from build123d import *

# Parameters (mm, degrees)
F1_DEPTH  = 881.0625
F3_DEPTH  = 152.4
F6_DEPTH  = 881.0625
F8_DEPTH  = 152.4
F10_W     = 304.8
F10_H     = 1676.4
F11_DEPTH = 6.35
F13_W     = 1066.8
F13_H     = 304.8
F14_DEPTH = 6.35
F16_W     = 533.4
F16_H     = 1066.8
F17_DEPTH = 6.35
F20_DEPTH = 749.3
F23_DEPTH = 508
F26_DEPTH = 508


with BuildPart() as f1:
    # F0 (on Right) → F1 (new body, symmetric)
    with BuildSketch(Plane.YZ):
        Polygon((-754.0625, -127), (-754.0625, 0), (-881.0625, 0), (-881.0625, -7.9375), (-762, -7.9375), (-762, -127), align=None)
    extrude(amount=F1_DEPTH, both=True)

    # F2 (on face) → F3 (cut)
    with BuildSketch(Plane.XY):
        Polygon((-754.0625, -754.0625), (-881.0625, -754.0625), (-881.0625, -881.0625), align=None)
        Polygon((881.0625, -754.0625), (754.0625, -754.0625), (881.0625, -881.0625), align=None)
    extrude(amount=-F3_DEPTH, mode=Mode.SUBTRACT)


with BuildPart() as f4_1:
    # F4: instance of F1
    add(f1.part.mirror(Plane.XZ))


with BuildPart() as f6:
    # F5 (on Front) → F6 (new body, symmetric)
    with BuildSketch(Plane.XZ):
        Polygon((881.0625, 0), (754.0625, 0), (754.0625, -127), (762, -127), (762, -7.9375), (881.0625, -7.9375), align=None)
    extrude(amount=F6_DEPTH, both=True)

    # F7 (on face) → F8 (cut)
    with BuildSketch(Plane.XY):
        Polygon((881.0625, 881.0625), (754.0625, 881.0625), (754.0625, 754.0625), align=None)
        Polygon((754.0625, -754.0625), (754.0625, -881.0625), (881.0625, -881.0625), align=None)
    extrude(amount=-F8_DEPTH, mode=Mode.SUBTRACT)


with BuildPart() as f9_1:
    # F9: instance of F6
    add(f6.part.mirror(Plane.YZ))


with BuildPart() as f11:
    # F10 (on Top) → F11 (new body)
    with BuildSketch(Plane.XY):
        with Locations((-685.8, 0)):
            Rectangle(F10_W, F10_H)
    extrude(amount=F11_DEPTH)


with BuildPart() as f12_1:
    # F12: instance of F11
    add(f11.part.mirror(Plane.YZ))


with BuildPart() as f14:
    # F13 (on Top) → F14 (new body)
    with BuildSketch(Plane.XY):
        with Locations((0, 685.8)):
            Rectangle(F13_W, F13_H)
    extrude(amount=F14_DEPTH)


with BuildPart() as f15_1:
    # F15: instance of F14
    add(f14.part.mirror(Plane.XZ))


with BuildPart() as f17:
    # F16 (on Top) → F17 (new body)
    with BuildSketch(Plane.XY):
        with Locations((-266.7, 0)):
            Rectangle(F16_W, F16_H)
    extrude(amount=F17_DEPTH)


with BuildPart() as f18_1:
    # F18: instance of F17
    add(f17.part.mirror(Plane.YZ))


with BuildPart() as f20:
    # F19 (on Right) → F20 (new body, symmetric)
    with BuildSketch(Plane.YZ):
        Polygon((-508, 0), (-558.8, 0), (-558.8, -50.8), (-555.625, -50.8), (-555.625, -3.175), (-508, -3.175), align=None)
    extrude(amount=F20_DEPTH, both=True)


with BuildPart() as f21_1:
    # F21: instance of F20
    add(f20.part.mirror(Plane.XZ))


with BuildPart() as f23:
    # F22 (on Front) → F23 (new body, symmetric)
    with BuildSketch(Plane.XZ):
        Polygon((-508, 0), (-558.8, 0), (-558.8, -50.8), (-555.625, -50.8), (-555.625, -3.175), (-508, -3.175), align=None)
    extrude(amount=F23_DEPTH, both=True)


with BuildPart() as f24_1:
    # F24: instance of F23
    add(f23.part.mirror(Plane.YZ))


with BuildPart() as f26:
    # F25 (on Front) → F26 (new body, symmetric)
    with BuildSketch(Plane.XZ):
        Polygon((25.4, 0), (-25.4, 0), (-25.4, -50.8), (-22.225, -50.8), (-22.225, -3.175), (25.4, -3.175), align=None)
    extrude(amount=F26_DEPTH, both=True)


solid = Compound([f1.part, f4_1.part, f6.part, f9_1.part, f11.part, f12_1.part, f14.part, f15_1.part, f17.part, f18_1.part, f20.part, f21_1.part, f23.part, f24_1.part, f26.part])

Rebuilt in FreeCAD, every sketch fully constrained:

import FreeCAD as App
import Part
import Sketcher
from FreeCAD import Vector
Q = App.Units.Quantity


def add_polygon(sketch, points):
    """Adds a closed chain of lines whose ends are joined by coincident constraints."""
    first, n = sketch.GeometryCount, len(points)
    for a, b in zip(points, points[1:] + points[:1]):
        sketch.addGeometry(Part.LineSegment(App.Vector(*a, 0), App.Vector(*b, 0)), False)
    for i in range(n):
        sketch.addConstraint(Sketcher.Constraint("Coincident", first + i, 2, first + (i + 1) % n, 1))

doc = App.newDocument("Part")
body = doc.addObject("PartDesign::Body", "Body")

# Sketch on YZ plane
sketch1 = body.newObject("Sketcher::SketchObject", "Sketch")
sketch1.AttachmentSupport = (doc.getObject("YZ_Plane"), [""])
sketch1.MapMode = "FlatFace"
add_polygon(sketch1, [(-754.0625, -127), (-754.0625, 0), (-881.0625, 0), (-881.0625, -7.9375), (-762, -7.9375), (-762, -127)])  # lines 0-5
sketch1.addConstraint(Sketcher.Constraint("Vertical", 0))
sketch1.addConstraint(Sketcher.Constraint("Horizontal", 1))
sketch1.addConstraint(Sketcher.Constraint("Vertical", 2))
sketch1.addConstraint(Sketcher.Constraint("Horizontal", 3))
sketch1.addConstraint(Sketcher.Constraint("Vertical", 4))
sketch1.addConstraint(Sketcher.Constraint("Horizontal", 5))
sketch1.addConstraint(Sketcher.Constraint("PointOnObject", 0, 2, -1))
sketch1.addConstraint(Sketcher.Constraint("Equal", 1, 0))
sketch1.addConstraint(Sketcher.Constraint("Equal", 5, 2))
sketch1.addConstraint(Sketcher.Constraint("DistanceX", 1, 2, 1, 1, Q("5 in")))
sketch1.addConstraint(Sketcher.Constraint("DistanceX", 3, 2, -1, 1, Q("30 in")))
sketch1.addConstraint(Sketcher.Constraint("DistanceX", 3, 1, 3, 2, Q("4.6875 in")))
pad1 = body.newObject("PartDesign::Pad", "Pad")
pad1.Profile = sketch1
pad1.Length = Q("69.375 in")
pad1.Midplane = True

# Sketch on XY plane
sketch2 = body.newObject("Sketcher::SketchObject", "Sketch001")
sketch2.AttachmentSupport = (doc.getObject("XY_Plane"), [""])
sketch2.MapMode = "FlatFace"
add_polygon(sketch2, [(-754.0625, -754.0625), (-881.0625, -754.0625), (-881.0625, -881.0625)])  # lines 0-2
add_polygon(sketch2, [(881.0625, -754.0625), (754.0625, -754.0625), (881.0625, -881.0625)])  # lines 3-5
sketch2.addConstraint(Sketcher.Constraint("Horizontal", 0))
sketch2.addConstraint(Sketcher.Constraint("Vertical", 1))
sketch2.addConstraint(Sketcher.Constraint("Horizontal", 3))
sketch2.addConstraint(Sketcher.Constraint("Vertical", 5))
sketch2.addConstraint(Sketcher.Constraint("Symmetric", 2, 2, 3, 2, -2))
sketch2.addConstraint(Sketcher.Constraint("Symmetric", 1, 2, 4, 2, -2))
sketch2.addConstraint(Sketcher.Constraint("Perpendicular", 2, 4))
sketch2.addConstraint(Sketcher.Constraint("DistanceX", 0, 2, 0, 1, Q("5 in")))
sketch2.addConstraint(Sketcher.Constraint("DistanceX", 0, 2, -1, 1, Q("34.6875 in")))
sketch2.addConstraint(Sketcher.Constraint("DistanceY", 0, 2, -1, 1, Q("29.6875 in")))
pocket1 = body.newObject("PartDesign::Pocket", "Pocket")
pocket1.Profile = sketch2
pocket1.Length = Q("6 in")
body2 = doc.addObject("PartDesign::Body", "Body001")
doc.recompute()

mirroring = doc.addObject("Part::Mirroring", "Mirroring")
mirroring.Source = body
mirroring.Base = Vector(0, 0, 0)
mirroring.Normal = Vector(0, -1, 0)
body2.BaseFeature = mirroring
doc.recompute()
body3 = doc.addObject("PartDesign::Body", "Body002")

# Sketch on XZ plane
sketch3 = body3.newObject("Sketcher::SketchObject", "Sketch002")
sketch3.AttachmentSupport = (doc.getObject("XZ_Plane002"), [""])
sketch3.MapMode = "FlatFace"
add_polygon(sketch3, [(881.0625, 0), (754.0625, 0), (754.0625, -127), (762, -127), (762, -7.9375), (881.0625, -7.9375)])  # lines 0-5
sketch3.addConstraint(Sketcher.Constraint("Horizontal", 0))
sketch3.addConstraint(Sketcher.Constraint("Vertical", 1))
sketch3.addConstraint(Sketcher.Constraint("Horizontal", 2))
sketch3.addConstraint(Sketcher.Constraint("Vertical", 3))
sketch3.addConstraint(Sketcher.Constraint("Horizontal", 4))
sketch3.addConstraint(Sketcher.Constraint("Vertical", 5))
sketch3.addConstraint(Sketcher.Constraint("PointOnObject", 0, 2, -1))
sketch3.addConstraint(Sketcher.Constraint("Equal", 0, 1))
sketch3.addConstraint(Sketcher.Constraint("Equal", 4, 3))
sketch3.addConstraint(Sketcher.Constraint("DistanceX", 0, 2, 0, 1, Q("5 in")))
sketch3.addConstraint(Sketcher.Constraint("DistanceX", -1, 1, 2, 2, Q("30 in")))
sketch3.addConstraint(Sketcher.Constraint("DistanceX", 2, 1, 2, 2, Q("0.3125 in")))
pad2 = body3.newObject("PartDesign::Pad", "Pad001")
pad2.Profile = sketch3
pad2.Length = Q("69.375 in")
pad2.Midplane = True

# Sketch on XY plane
sketch4 = body3.newObject("Sketcher::SketchObject", "Sketch003")
sketch4.AttachmentSupport = (doc.getObject("XY_Plane002"), [""])
sketch4.MapMode = "FlatFace"
add_polygon(sketch4, [(881.0625, 881.0625), (754.0625, 881.0625), (754.0625, 754.0625)])  # lines 0-2
add_polygon(sketch4, [(754.0625, -754.0625), (754.0625, -881.0625), (881.0625, -881.0625)])  # lines 3-5
sketch4.addConstraint(Sketcher.Constraint("Horizontal", 0))
sketch4.addConstraint(Sketcher.Constraint("Vertical", 1))
sketch4.addConstraint(Sketcher.Constraint("Vertical", 3))
sketch4.addConstraint(Sketcher.Constraint("Horizontal", 4))
sketch4.addConstraint(Sketcher.Constraint("Symmetric", 0, 2, 3, 2, -1))
sketch4.addConstraint(Sketcher.Constraint("Perpendicular", 2, 5))
sketch4.addConstraint(Sketcher.Constraint("Vertical", 2, 2, 4, 2))
sketch4.addConstraint(Sketcher.Constraint("Equal", 4, 1))
sketch4.addConstraint(Sketcher.Constraint("DistanceX", 0, 2, 0, 1, Q("5 in")))
sketch4.addConstraint(Sketcher.Constraint("DistanceX", -1, 1, 0, 2, Q("29.6875 in")))
sketch4.addConstraint(Sketcher.Constraint("DistanceY", -1, 1, 0, 2, Q("34.6875 in")))
pocket2 = body3.newObject("PartDesign::Pocket", "Pocket001")
pocket2.Profile = sketch4
pocket2.Length = Q("6 in")
body4 = doc.addObject("PartDesign::Body", "Body003")
doc.recompute()

mirroring2 = doc.addObject("Part::Mirroring", "Mirroring001")
mirroring2.Source = body3
mirroring2.Base = Vector(0, 0, 0)
mirroring2.Normal = Vector(1, 0, 0)
body4.BaseFeature = mirroring2
doc.recompute()
body5 = doc.addObject("PartDesign::Body", "Body004")

# Sketch on XY plane
sketch5 = body5.newObject("Sketcher::SketchObject", "Sketch004")
sketch5.AttachmentSupport = (doc.getObject("XY_Plane004"), [""])
sketch5.MapMode = "FlatFace"
add_polygon(sketch5, [(-838.2, 838.2), (-838.2, -838.2), (-533.4, -838.2), (-533.4, 838.2)])  # lines 0-3
sketch5.addConstraint(Sketcher.Constraint("Vertical", 0))
sketch5.addConstraint(Sketcher.Constraint("Horizontal", 1))
sketch5.addConstraint(Sketcher.Constraint("Vertical", 2))
sketch5.addConstraint(Sketcher.Constraint("Horizontal", 3))
sketch5.addConstraint(Sketcher.Constraint("DistanceX", 1, 1, 1, 2, Q("12 in")))
sketch5.addConstraint(Sketcher.Constraint("DistanceY", 0, 2, 0, 1, Q("66 in")))
sketch5.addConstraint(Sketcher.Constraint("DistanceX", 0, 2, -1, 1, Q("33 in")))
sketch5.addConstraint(Sketcher.Constraint("DistanceY", 0, 2, -1, 1, Q("33 in")))
pad3 = body5.newObject("PartDesign::Pad", "Pad002")
pad3.Profile = sketch5
pad3.Length = Q("0.25 in")
body6 = doc.addObject("PartDesign::Body", "Body005")
doc.recompute()

mirroring3 = doc.addObject("Part::Mirroring", "Mirroring002")
mirroring3.Source = body5
mirroring3.Base = Vector(0, 0, 0)
mirroring3.Normal = Vector(1, 0, 0)
body6.BaseFeature = mirroring3
doc.recompute()
body7 = doc.addObject("PartDesign::Body", "Body006")

# Sketch on XY plane
sketch6 = body7.newObject("Sketcher::SketchObject", "Sketch005")
sketch6.AttachmentSupport = (doc.getObject("XY_Plane006"), [""])
sketch6.MapMode = "FlatFace"
add_polygon(sketch6, [(-533.4, 838.2), (-533.4, 533.4), (533.4, 533.4), (533.4, 838.2)])  # lines 0-3
sketch6.addConstraint(Sketcher.Constraint("Vertical", 0))
sketch6.addConstraint(Sketcher.Constraint("Horizontal", 1))
sketch6.addConstraint(Sketcher.Constraint("Vertical", 2))
sketch6.addConstraint(Sketcher.Constraint("Horizontal", 3))
sketch6.addConstraint(Sketcher.Constraint("DistanceX", 1, 1, 1, 2, Q("42 in")))
sketch6.addConstraint(Sketcher.Constraint("DistanceY", 0, 2, 0, 1, Q("12 in")))
sketch6.addConstraint(Sketcher.Constraint("DistanceX", 0, 2, -1, 1, Q("21 in")))
sketch6.addConstraint(Sketcher.Constraint("DistanceY", -1, 1, 0, 2, Q("21 in")))
pad4 = body7.newObject("PartDesign::Pad", "Pad003")
pad4.Profile = sketch6
pad4.Length = Q("0.25 in")
body8 = doc.addObject("PartDesign::Body", "Body007")
doc.recompute()

mirroring4 = doc.addObject("Part::Mirroring", "Mirroring003")
mirroring4.Source = body7
mirroring4.Base = Vector(0, 0, 0)
mirroring4.Normal = Vector(0, -1, 0)
body8.BaseFeature = mirroring4
doc.recompute()
body9 = doc.addObject("PartDesign::Body", "Body008")

# Sketch on XY plane
sketch7 = body9.newObject("Sketcher::SketchObject", "Sketch006")
sketch7.AttachmentSupport = (doc.getObject("XY_Plane008"), [""])
sketch7.MapMode = "FlatFace"
add_polygon(sketch7, [(-533.4, 533.4), (-533.4, -533.4), (0, -533.4), (0, 533.4)])  # lines 0-3
sketch7.addConstraint(Sketcher.Constraint("Vertical", 0))
sketch7.addConstraint(Sketcher.Constraint("Horizontal", 1))
sketch7.addConstraint(Sketcher.Constraint("Vertical", 2))
sketch7.addConstraint(Sketcher.Constraint("Horizontal", 3))
sketch7.addConstraint(Sketcher.Constraint("Symmetric", 1, 2, 2, 2, -1, 1))
sketch7.addConstraint(Sketcher.Constraint("DistanceX", 1, 1, 1, 2, Q("21 in")))
sketch7.addConstraint(Sketcher.Constraint("DistanceY", 0, 2, 0, 1, Q("42 in")))
pad5 = body9.newObject("PartDesign::Pad", "Pad004")
pad5.Profile = sketch7
pad5.Length = Q("0.25 in")
body10 = doc.addObject("PartDesign::Body", "Body009")
doc.recompute()

mirroring5 = doc.addObject("Part::Mirroring", "Mirroring004")
mirroring5.Source = body9
mirroring5.Base = Vector(0, 0, 0)
mirroring5.Normal = Vector(1, 0, 0)
body10.BaseFeature = mirroring5
doc.recompute()
body11 = doc.addObject("PartDesign::Body", "Body010")

# Sketch on YZ plane
sketch8 = body11.newObject("Sketcher::SketchObject", "Sketch007")
sketch8.AttachmentSupport = (doc.getObject("YZ_Plane010"), [""])
sketch8.MapMode = "FlatFace"
add_polygon(sketch8, [(-508, 0), (-558.8, 0), (-558.8, -50.8), (-555.625, -50.8), (-555.625, -3.175), (-508, -3.175)])  # lines 0-5
sketch8.addConstraint(Sketcher.Constraint("Horizontal", 0))
sketch8.addConstraint(Sketcher.Constraint("Vertical", 1))
sketch8.addConstraint(Sketcher.Constraint("Horizontal", 2))
sketch8.addConstraint(Sketcher.Constraint("Vertical", 3))
sketch8.addConstraint(Sketcher.Constraint("Horizontal", 4))
sketch8.addConstraint(Sketcher.Constraint("Vertical", 5))
sketch8.addConstraint(Sketcher.Constraint("PointOnObject", 0, 2, -1))
sketch8.addConstraint(Sketcher.Constraint("Equal", 0, 1))
sketch8.addConstraint(Sketcher.Constraint("Equal", 4, 3))
sketch8.addConstraint(Sketcher.Constraint("DistanceX", 0, 2, 0, 1, Q("2 in")))
sketch8.addConstraint(Sketcher.Constraint("DistanceX", 0, 2, -1, 1, Q("22 in")))
sketch8.addConstraint(Sketcher.Constraint("DistanceX", 2, 1, 2, 2, Q("0.125 in")))
pad6 = body11.newObject("PartDesign::Pad", "Pad005")
pad6.Profile = sketch8
pad6.Length = Q("59 in")
pad6.Midplane = True
body12 = doc.addObject("PartDesign::Body", "Body011")
doc.recompute()

mirroring6 = doc.addObject("Part::Mirroring", "Mirroring005")
mirroring6.Source = body11
mirroring6.Base = Vector(0, 0, 0)
mirroring6.Normal = Vector(0, -1, 0)
body12.BaseFeature = mirroring6
doc.recompute()
body13 = doc.addObject("PartDesign::Body", "Body012")

# Sketch on XZ plane
sketch9 = body13.newObject("Sketcher::SketchObject", "Sketch008")
sketch9.AttachmentSupport = (doc.getObject("XZ_Plane012"), [""])
sketch9.MapMode = "FlatFace"
add_polygon(sketch9, [(-508, 0), (-558.8, 0), (-558.8, -50.8), (-555.625, -50.8), (-555.625, -3.175), (-508, -3.175)])  # lines 0-5
sketch9.addConstraint(Sketcher.Constraint("Horizontal", 0))
sketch9.addConstraint(Sketcher.Constraint("Vertical", 1))
sketch9.addConstraint(Sketcher.Constraint("Horizontal", 2))
sketch9.addConstraint(Sketcher.Constraint("Vertical", 3))
sketch9.addConstraint(Sketcher.Constraint("Horizontal", 4))
sketch9.addConstraint(Sketcher.Constraint("Vertical", 5))
sketch9.addConstraint(Sketcher.Constraint("PointOnObject", 0, 2, -1))
sketch9.addConstraint(Sketcher.Constraint("Equal", 0, 1))
sketch9.addConstraint(Sketcher.Constraint("Equal", 4, 3))
sketch9.addConstraint(Sketcher.Constraint("DistanceX", 0, 2, 0, 1, Q("2 in")))
sketch9.addConstraint(Sketcher.Constraint("DistanceX", 0, 2, -1, 1, Q("22 in")))
sketch9.addConstraint(Sketcher.Constraint("DistanceX", 2, 1, 2, 2, Q("0.125 in")))
pad7 = body13.newObject("PartDesign::Pad", "Pad006")
pad7.Profile = sketch9
pad7.Length = Q("40 in")
pad7.Midplane = True
body14 = doc.addObject("PartDesign::Body", "Body013")
doc.recompute()

mirroring7 = doc.addObject("Part::Mirroring", "Mirroring006")
mirroring7.Source = body13
mirroring7.Base = Vector(0, 0, 0)
mirroring7.Normal = Vector(1, 0, 0)
body14.BaseFeature = mirroring7
doc.recompute()
body15 = doc.addObject("PartDesign::Body", "Body014")

# Sketch on XZ plane
sketch10 = body15.newObject("Sketcher::SketchObject", "Sketch009")
sketch10.AttachmentSupport = (doc.getObject("XZ_Plane014"), [""])
sketch10.MapMode = "FlatFace"
add_polygon(sketch10, [(25.4, 0), (-25.4, 0), (-25.4, -50.8), (-22.225, -50.8), (-22.225, -3.175), (25.4, -3.175)])  # lines 0-5
sketch10.addConstraint(Sketcher.Constraint("Horizontal", 0))
sketch10.addConstraint(Sketcher.Constraint("Vertical", 1))
sketch10.addConstraint(Sketcher.Constraint("Horizontal", 2))
sketch10.addConstraint(Sketcher.Constraint("Vertical", 3))
sketch10.addConstraint(Sketcher.Constraint("Horizontal", 4))
sketch10.addConstraint(Sketcher.Constraint("Vertical", 5))
sketch10.addConstraint(Sketcher.Constraint("Symmetric", 0, 2, 5, 2, -1, 1))
sketch10.addConstraint(Sketcher.Constraint("Equal", 0, 1))
sketch10.addConstraint(Sketcher.Constraint("Equal", 4, 3))
sketch10.addConstraint(Sketcher.Constraint("DistanceX", 0, 2, 0, 1, Q("2 in")))
sketch10.addConstraint(Sketcher.Constraint("DistanceX", 2, 1, 2, 2, Q("0.125 in")))
pad8 = body15.newObject("PartDesign::Pad", "Pad007")
pad8.Profile = sketch10
pad8.Length = Q("40 in")
pad8.Midplane = True
mirroring.Visibility = False
mirroring2.Visibility = False
mirroring3.Visibility = False
mirroring4.Visibility = False
mirroring5.Visibility = False
mirroring6.Visibility = False
mirroring7.Visibility = False

doc.recompute()
